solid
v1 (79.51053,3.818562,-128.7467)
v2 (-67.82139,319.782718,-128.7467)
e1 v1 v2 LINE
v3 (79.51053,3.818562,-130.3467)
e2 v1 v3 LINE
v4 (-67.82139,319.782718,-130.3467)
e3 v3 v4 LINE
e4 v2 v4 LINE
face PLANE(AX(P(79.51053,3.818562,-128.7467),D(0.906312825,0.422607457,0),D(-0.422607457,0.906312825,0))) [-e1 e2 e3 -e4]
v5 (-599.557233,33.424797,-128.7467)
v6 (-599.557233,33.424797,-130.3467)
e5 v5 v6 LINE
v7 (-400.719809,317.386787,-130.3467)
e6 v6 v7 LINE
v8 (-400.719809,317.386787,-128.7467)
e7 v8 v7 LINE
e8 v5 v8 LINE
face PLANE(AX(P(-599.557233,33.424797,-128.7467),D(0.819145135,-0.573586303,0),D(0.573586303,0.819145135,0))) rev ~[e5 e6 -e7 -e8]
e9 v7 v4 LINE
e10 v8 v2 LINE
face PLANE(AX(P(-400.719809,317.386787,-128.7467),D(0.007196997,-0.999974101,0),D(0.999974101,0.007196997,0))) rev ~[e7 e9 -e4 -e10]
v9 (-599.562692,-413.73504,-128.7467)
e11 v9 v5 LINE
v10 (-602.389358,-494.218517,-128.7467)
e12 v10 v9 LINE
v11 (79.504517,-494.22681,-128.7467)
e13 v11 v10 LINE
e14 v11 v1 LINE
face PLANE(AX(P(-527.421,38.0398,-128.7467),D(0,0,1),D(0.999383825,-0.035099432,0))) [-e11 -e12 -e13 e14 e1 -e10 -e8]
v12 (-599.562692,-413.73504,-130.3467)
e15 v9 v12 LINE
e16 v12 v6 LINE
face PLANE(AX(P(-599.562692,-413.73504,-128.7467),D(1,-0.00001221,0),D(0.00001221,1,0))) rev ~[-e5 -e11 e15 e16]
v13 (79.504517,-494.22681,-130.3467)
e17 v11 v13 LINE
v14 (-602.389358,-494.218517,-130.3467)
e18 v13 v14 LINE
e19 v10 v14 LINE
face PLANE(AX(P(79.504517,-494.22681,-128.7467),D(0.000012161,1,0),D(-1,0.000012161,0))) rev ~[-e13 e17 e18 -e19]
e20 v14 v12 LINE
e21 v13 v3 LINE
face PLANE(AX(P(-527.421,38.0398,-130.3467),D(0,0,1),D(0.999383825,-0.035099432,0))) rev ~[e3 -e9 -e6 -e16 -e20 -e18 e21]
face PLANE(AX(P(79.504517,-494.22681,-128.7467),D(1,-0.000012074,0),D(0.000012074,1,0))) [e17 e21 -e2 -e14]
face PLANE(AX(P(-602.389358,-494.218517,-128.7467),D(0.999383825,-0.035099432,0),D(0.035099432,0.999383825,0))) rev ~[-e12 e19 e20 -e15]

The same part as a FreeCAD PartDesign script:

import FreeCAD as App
import Part
import Sketcher
from FreeCAD import Vector
Q = App.Units.Quantity

doc = App.newDocument("Part")
body = doc.addObject("PartDesign::Body", "Body")

sketch1 = body.newObject("Sketcher::SketchObject", "Sketch")
sketch1.AttachmentSupport = (doc.getObject("XY_Plane"), [""])
sketch1.MapMode = "FlatFace"
sketch1.AttachmentOffset = App.Placement(Vector(0, 0, -128.7467), App.Rotation())
sketch1.addGeometry([
    Part.LineSegment(Vector(-400.719809, 317.386787, 0), Vector(-599.557233, 33.424797, 0)),
    Part.LineSegment(Vector(-599.557233, 33.424797, 0), Vector(-599.562692, -413.73504, 0)),
    Part.LineSegment(Vector(-599.562692, -413.73504, 0), Vector(-602.389358, -494.218517, 0)),
    Part.LineSegment(Vector(-602.389358, -494.218517, 0), Vector(79.504517, -494.22681, 0)),
    Part.LineSegment(Vector(79.504517, -494.22681, 0), Vector(79.51053, 3.818562, 0)),
    Part.LineSegment(Vector(79.51053, 3.818562, 0), Vector(-67.82139, 319.782718, 0)),
    Part.LineSegment(Vector(-67.82139, 319.782718, 0), Vector(-400.719809, 317.386787, 0)),
], False)
sketch1.addConstraint([
    Sketcher.Constraint("Coincident", 0, 2, 1, 1),
    Sketcher.Constraint("Coincident", 1, 2, 2, 1),
    Sketcher.Constraint("Coincident", 2, 2, 3, 1),
    Sketcher.Constraint("Coincident", 3, 2, 4, 1),
    Sketcher.Constraint("Coincident", 4, 2, 5, 1),
    Sketcher.Constraint("Coincident", 5, 2, 6, 1),
    Sketcher.Constraint("Coincident", 6, 2, 0, 1),
    Sketcher.Constraint("Perpendicular", 1, 3),
    Sketcher.Constraint("Perpendicular", 3, 4),
    Sketcher.Constraint("Angle", 0, Q("-125.0007 deg")),
    Sketcher.Constraint("Angle", 1, Q("-90.0007 deg")),
    Sketcher.Constraint("Angle", 5, Q("114.9993 deg")),
    Sketcher.Constraint("Distance", 0, Q("13.6479 in")),
    Sketcher.Constraint("Distance", 2, Q("3.1706 in")),
    Sketcher.Constraint("DistanceX", -1, 1, 3, 2, Q("3.1301 in")),
    Sketcher.Constraint("DistanceX", 2, 2, 0, 2, Q("0.1115 in")),
    Sketcher.Constraint("DistanceY", 4, 2, 0, 2, Q("1.1656 in")),
    Sketcher.Constraint("DistanceX", 1, 2, 5, 2, Q("20.9347 in")),
    Sketcher.Constraint("DistanceY", 2, 2, 5, 2, Q("32.0473 in")),
    Sketcher.Constraint("DistanceX", 6, 2, 4, 2, Q("18.9067 in")),
    Sketcher.Constraint("DistanceY", -1, 1, 0, 2, Q("33.4248 mm")),
])
pad1 = body.newObject("PartDesign::Pad", "Pad")
pad1.Profile = sketch1
pad1.Length = Q("0.0629921 in")
pad1.Reversed = True

doc.recompute()
